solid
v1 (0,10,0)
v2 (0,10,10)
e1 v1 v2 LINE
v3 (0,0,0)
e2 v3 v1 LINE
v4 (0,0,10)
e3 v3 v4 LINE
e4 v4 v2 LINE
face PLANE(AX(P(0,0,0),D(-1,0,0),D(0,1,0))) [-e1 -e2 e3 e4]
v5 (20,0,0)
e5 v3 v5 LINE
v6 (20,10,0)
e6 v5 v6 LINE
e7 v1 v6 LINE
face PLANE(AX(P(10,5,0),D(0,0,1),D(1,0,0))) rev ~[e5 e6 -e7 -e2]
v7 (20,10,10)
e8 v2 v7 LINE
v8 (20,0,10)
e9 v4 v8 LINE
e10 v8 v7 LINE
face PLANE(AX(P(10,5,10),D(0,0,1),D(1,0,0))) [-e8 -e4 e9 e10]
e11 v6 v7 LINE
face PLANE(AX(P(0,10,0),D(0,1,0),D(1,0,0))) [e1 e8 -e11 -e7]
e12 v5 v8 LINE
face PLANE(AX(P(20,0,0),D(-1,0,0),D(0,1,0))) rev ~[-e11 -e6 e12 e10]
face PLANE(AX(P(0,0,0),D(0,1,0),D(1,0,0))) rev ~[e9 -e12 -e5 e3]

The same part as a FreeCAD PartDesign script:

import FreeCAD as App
import Part
import Sketcher

V = App.Vector


def add_polygon(sketch, points):
    """Adds a closed chain of lines whose ends are joined by coincident constraints."""
    first, n = sketch.GeometryCount, len(points)
    for a, b in zip(points, points[1:] + points[:1]):
        sketch.addGeometry(Part.LineSegment(App.Vector(*a, 0), App.Vector(*b, 0)), False)
    for i in range(n):
        sketch.addConstraint(Sketcher.Constraint("Coincident", first + i, 2, first + (i + 1) % n, 1))

doc = App.newDocument("Part")
body = doc.addObject("PartDesign::Body", "Body")

# Sketch on XY plane
sketch1 = doc.addObject("Sketcher::SketchObject", "Sketch")
body.addObject(sketch1)
sketch1.AttachmentSupport = (doc.XY_Plane, [""])
sketch1.MapMode = "FlatFace"
add_polygon(sketch1, [(0, 10), (0, 0), (20, 0), (20, 10)])  # lines 0-3
sketch1.addConstraint([
    Sketcher.Constraint("Vertical", 0),
    Sketcher.Constraint("Horizontal", 1),
    Sketcher.Constraint("Vertical", 2),
    Sketcher.Constraint("Horizontal", 3),
    Sketcher.Constraint("Coincident", 0, 2, -1, 1),
    Sketcher.Constraint("DistanceX", 1, 1, 1, 2, 20.0),
    Sketcher.Constraint("DistanceY", 0, 2, 0, 1, 10.0),
])
pad1 = doc.addObject("PartDesign::Pad", "Pad")
body.addObject(pad1)
pad1.Profile = sketch1
pad1.Length = 10

doc.recompute()
